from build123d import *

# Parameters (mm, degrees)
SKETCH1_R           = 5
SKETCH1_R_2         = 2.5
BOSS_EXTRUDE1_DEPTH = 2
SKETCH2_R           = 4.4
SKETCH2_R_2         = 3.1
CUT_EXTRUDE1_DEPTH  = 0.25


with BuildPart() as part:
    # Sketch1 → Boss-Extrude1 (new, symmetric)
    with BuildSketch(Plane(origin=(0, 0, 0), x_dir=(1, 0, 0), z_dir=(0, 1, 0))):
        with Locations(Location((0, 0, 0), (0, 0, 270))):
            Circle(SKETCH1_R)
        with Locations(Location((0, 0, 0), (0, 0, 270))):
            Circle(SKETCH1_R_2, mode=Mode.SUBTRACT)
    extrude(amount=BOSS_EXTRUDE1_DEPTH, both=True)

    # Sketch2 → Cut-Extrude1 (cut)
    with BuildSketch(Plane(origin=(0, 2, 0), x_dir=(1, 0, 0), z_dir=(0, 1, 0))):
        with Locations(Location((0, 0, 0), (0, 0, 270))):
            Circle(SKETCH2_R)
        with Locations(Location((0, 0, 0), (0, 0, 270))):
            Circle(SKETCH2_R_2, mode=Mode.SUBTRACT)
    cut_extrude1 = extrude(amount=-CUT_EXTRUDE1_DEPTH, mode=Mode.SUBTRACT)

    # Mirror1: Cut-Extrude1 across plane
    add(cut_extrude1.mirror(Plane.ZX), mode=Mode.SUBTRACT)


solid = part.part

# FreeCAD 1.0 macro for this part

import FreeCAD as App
import Part
import Sketcher
from FreeCAD import Vector

doc = App.newDocument("Part")
body = doc.addObject("PartDesign::Body", "Body")

sketch1 = doc.addObject("Sketcher::SketchObject", "Sketch")
body.addObject(sketch1)
sketch1.AttachmentSupport = (doc.XZ_Plane, [""])
sketch1.MapMode = "FlatFace"
sketch1.addGeometry([
    Part.Circle(Vector(0, 0, 0), Vector(0, 0, 1), 5),
    Part.Circle(Vector(0, 0, 0), Vector(0, 0, 1), 2.5),
], False)
sketch1.addConstraint([
    Sketcher.Constraint("Coincident", 0, 3, -1, 1),
    Sketcher.Constraint("Coincident", 1, 3, -1, 1),
    Sketcher.Constraint("Diameter", 0, 10.0),
    Sketcher.Constraint("Diameter", 1, 5.0),
])
pad1 = doc.addObject("PartDesign::Pad", "Pad")
body.addObject(pad1)
pad1.Profile = sketch1
pad1.Length = 4
pad1.Midplane = True

sketch2 = doc.addObject("Sketcher::SketchObject", "Sketch001")
body.addObject(sketch2)
sketch2.AttachmentSupport = (doc.XZ_Plane, [""])
sketch2.MapMode = "FlatFace"
sketch2.AttachmentOffset = App.Placement(Vector(0, 0, -2), App.Rotation())
sketch2.addGeometry([
    Part.Circle(Vector(0, 0, 0), Vector(0, 0, 1), 4.4),
    Part.Circle(Vector(0, 0, 0), Vector(0, 0, 1), 3.1),
], False)
sketch2.addConstraint([
    Sketcher.Constraint("Coincident", 0, 3, -1, 1),
    Sketcher.Constraint("Coincident", 1, 3, -1, 1),
    Sketcher.Constraint("Diameter", 0, 8.8),
    Sketcher.Constraint("Diameter", 1, 6.2),
])
pocket1 = doc.addObject("PartDesign::Pocket", "Pocket")
body.addObject(pocket1)
pocket1.Profile = sketch2
pocket1.Length = 0.25
pocket1.Reversed = True
doc.recompute()

mirrored = doc.addObject("PartDesign::Mirrored", "Mirrored")
body.addObject(mirrored)
mirrored.Originals = [pocket1]
mirrored.MirrorPlane = (doc.XZ_Plane, [""])
body.Tip = mirrored

doc.recompute()
